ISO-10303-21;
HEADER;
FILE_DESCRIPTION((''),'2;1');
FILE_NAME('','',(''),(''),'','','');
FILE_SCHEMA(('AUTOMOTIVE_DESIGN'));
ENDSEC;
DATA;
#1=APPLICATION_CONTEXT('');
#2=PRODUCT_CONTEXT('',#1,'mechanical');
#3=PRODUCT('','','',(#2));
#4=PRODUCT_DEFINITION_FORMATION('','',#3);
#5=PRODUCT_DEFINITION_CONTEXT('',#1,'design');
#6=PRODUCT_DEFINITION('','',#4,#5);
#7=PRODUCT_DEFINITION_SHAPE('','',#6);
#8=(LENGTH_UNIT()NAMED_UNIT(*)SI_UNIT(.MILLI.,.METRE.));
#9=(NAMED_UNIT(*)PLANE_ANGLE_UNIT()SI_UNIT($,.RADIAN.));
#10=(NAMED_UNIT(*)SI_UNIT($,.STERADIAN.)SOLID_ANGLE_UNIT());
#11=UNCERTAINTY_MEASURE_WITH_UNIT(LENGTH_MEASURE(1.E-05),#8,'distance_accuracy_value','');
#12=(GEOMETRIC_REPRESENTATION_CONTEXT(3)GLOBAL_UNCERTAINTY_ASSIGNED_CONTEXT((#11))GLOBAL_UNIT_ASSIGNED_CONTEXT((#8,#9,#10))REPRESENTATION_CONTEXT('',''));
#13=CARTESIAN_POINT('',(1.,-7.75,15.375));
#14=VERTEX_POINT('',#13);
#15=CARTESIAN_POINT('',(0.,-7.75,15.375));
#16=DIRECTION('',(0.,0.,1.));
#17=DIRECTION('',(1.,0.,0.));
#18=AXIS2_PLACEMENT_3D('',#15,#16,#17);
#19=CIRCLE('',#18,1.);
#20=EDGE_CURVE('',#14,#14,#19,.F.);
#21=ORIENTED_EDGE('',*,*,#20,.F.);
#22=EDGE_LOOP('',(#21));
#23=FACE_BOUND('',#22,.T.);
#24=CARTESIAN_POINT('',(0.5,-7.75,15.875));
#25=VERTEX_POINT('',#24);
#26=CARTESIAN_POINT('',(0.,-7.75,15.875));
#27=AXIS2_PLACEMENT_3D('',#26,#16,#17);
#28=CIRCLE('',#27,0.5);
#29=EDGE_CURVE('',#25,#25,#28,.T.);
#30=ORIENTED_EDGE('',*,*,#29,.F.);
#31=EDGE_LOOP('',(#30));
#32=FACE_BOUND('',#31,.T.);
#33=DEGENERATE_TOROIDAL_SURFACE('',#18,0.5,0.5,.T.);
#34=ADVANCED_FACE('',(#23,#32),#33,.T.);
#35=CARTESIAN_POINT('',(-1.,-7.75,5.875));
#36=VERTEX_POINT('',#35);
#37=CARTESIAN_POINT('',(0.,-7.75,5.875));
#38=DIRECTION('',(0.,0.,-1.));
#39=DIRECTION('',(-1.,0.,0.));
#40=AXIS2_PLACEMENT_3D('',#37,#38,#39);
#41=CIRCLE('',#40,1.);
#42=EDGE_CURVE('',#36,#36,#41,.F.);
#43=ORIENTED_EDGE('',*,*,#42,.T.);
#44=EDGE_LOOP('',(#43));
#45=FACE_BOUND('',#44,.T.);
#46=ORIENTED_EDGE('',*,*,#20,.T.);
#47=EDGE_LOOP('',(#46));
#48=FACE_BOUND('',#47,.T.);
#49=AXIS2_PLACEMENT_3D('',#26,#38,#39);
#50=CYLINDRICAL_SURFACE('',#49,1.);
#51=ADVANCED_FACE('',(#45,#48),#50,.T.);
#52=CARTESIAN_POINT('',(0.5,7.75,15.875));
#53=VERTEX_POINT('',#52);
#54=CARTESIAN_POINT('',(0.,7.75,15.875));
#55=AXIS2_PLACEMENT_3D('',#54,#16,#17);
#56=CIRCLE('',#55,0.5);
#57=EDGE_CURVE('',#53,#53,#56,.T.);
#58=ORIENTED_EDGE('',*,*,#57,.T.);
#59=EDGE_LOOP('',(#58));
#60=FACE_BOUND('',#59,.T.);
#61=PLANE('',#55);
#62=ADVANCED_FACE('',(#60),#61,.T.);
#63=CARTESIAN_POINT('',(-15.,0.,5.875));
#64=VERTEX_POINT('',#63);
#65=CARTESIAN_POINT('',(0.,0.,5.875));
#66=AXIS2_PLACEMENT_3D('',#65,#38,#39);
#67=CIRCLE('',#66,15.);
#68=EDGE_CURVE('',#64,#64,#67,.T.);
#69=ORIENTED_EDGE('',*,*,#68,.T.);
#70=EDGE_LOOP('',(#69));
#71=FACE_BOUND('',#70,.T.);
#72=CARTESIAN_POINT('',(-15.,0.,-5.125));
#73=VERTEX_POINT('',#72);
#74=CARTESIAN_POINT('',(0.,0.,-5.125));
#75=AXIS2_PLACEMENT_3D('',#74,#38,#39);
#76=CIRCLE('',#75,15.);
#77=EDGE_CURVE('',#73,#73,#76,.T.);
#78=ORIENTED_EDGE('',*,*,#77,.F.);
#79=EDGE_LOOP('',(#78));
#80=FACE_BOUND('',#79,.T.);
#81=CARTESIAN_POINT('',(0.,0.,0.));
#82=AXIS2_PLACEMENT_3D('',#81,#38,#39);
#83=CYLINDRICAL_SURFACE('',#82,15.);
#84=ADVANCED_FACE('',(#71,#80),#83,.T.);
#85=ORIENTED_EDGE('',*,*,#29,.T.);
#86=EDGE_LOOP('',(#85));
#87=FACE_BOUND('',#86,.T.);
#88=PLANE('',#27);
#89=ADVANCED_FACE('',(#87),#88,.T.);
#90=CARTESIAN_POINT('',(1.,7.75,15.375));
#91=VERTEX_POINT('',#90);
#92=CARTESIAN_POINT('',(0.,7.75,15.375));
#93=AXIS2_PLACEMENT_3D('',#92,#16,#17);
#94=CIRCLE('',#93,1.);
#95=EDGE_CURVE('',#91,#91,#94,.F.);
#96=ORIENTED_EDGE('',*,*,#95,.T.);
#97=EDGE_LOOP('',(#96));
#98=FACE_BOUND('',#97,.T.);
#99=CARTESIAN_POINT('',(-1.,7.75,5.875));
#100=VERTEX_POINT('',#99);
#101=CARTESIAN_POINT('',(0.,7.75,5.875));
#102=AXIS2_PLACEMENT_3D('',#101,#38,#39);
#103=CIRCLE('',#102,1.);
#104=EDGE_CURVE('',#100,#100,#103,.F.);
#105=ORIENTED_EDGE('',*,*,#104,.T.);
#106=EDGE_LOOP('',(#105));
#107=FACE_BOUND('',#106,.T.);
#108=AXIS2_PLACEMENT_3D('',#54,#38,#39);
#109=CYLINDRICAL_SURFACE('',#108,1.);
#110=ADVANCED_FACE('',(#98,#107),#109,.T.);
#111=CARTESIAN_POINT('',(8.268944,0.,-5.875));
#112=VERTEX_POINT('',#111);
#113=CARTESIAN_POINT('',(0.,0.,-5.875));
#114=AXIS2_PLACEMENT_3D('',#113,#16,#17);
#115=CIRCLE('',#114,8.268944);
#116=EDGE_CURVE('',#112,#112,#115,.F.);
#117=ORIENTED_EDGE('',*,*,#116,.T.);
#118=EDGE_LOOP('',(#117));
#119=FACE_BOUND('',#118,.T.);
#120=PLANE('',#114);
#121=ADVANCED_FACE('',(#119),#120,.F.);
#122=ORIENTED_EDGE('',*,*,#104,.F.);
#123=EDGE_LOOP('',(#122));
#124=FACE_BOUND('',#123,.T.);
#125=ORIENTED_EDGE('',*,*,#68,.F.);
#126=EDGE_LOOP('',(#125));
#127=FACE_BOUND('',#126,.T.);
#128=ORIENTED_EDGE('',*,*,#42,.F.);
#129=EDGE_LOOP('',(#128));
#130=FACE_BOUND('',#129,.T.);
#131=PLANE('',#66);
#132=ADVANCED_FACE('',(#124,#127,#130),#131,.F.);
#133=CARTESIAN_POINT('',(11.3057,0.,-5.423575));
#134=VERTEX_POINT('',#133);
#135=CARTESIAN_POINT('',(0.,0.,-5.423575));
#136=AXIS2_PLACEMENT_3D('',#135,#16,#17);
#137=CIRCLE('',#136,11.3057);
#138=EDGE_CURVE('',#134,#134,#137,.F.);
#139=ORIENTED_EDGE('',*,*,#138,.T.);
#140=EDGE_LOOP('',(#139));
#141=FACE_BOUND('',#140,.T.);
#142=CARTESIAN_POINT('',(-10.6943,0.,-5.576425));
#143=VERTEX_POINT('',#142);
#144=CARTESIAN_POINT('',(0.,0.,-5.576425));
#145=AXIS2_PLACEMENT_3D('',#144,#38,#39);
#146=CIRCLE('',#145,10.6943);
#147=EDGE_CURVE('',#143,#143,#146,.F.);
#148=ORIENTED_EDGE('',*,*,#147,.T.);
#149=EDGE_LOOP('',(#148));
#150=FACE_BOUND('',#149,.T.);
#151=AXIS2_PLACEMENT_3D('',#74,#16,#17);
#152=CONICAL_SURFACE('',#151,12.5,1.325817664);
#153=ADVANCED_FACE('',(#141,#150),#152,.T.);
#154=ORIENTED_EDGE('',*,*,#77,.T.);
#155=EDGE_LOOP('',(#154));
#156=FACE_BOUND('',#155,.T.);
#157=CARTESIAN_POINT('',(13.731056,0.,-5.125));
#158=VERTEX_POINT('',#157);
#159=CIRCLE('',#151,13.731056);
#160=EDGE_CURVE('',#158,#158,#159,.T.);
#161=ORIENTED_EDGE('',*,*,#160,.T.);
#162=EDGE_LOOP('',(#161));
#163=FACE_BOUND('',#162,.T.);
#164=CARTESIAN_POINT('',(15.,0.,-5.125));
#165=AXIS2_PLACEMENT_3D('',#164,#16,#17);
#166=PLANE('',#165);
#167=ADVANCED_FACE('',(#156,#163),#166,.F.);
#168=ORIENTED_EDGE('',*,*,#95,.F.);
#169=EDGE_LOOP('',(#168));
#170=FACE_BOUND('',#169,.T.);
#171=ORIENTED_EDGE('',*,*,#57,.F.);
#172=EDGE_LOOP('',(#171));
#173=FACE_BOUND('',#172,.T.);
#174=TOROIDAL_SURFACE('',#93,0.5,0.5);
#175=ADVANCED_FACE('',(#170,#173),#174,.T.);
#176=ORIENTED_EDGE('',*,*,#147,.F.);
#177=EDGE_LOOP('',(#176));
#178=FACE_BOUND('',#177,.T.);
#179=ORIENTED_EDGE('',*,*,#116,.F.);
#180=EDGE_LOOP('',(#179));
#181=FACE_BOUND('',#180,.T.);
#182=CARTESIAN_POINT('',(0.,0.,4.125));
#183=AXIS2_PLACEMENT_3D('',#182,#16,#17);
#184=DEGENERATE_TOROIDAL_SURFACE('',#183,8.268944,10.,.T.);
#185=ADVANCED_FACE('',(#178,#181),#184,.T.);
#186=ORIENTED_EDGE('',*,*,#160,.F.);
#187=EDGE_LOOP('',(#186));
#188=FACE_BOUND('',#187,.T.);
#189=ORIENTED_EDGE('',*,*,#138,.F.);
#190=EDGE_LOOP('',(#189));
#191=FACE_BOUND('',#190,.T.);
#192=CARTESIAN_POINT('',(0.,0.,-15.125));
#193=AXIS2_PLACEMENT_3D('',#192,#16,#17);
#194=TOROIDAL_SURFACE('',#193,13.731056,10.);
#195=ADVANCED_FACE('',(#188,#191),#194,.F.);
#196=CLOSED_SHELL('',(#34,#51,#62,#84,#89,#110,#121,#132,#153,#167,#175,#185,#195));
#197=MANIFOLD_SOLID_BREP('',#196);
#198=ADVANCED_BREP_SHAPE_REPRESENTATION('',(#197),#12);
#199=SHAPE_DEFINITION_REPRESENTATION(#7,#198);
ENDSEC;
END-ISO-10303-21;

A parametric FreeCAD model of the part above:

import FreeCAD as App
import Part
import Sketcher
from FreeCAD import Vector
Q = App.Units.Quantity


def edges_at(feature, points):
    """Names of the edges that pass closest to the given points."""
    edges = feature.Shape.Edges
    near = lambda p: min(range(len(edges)), key=lambda i: edges[i].distToShape(Part.Vertex(*p))[0])
    return sorted({f"Edge{near(p) + 1}" for p in points})

doc = App.newDocument("Part")
params = doc.addObject("Spreadsheet::Sheet", "Params")
for row, (alias, value) in enumerate([
    ("sketch1_width", "15 mm"),
    ("revolution_angle", "360 deg"),
    ("fillet_radius", "10 mm"),
    ("sketch2_diameter", "2 mm"),
    ("pad1_length", "10 mm"),
    ("fillet2_radius", "0.5 mm"),
], start=1):
    params.set(f"A{row}", alias)
    params.set(f"B{row}", "=" + value)
    params.setAlias(f"B{row}", alias)

body = doc.addObject("PartDesign::Body", "Body")

# Sketch on XZ plane
sketch1 = body.newObject("Sketcher::SketchObject", "Sketch")
sketch1.AttachmentSupport = (doc.getObject("XZ_Plane"), [""])
sketch1.MapMode = "FlatFace"
sketch1.addGeometry([
    Part.LineSegment(Vector(0, 5.875, 0), Vector(15, 5.875, 0)),  # 0
    Part.LineSegment(Vector(15, 5.875, 0), Vector(15, -5.125, 0)),  # 1
    Part.LineSegment(Vector(15, -5.125, 0), Vector(12.5, -5.125, 0)),  # 2
    Part.BSplineCurve([Vector(12.5, -5.125, 0), Vector(9.5, -5.875, 0)], [2, 2], [0, 1], False, 1, [1, 1], False),  # 3
    Part.LineSegment(Vector(9.5, -5.875, 0), Vector(0, -5.875, 0)),  # 4
    Part.LineSegment(Vector(0, -5.875, 0), Vector(0, 5.875, 0)),  # 5
], False)
sketch1.addConstraint([
    Sketcher.Constraint("Block", 3),
    Sketcher.Constraint("Coincident", 0, 2, 1, 1),
    Sketcher.Constraint("Coincident", 1, 2, 2, 1),
    Sketcher.Constraint("Coincident", 2, 2, 3, 1),
    Sketcher.Constraint("Coincident", 3, 2, 4, 1),
    Sketcher.Constraint("Coincident", 4, 2, 5, 1),
    Sketcher.Constraint("Coincident", 5, 2, 0, 1),
    Sketcher.Constraint("Horizontal", 0),
    Sketcher.Constraint("Vertical", 1),
    Sketcher.Constraint("Horizontal", 2),
    Sketcher.Constraint("Horizontal", 4),
    Sketcher.Constraint("Vertical", 5),
    Sketcher.Constraint("Symmetric", 4, 2, 5, 2, -1, 1),
    Sketcher.Constraint("DistanceX", 0, 1, 0, 2, Q("15 mm")),
])
sketch1.setExpression("Constraints[13]", "Params.sketch1_width")
revolution = body.newObject("PartDesign::Revolution", "Revolution")
revolution.Profile = sketch1
revolution.ReferenceAxis = (sketch1, ["V_Axis"])
revolution.setExpression("Angle", "Params.revolution_angle")
doc.recompute()

fillet = body.newObject("PartDesign::Fillet", "Fillet")
fillet.Base = (revolution, edges_at(revolution, [(-12.5, 0, -5.125), (-9.5, 0, -5.875)]))
fillet.setExpression("Radius", "Params.fillet_radius")

# Sketch on XY plane
sketch2 = body.newObject("Sketcher::SketchObject", "Sketch001")
sketch2.AttachmentSupport = (doc.getObject("XY_Plane"), [""])
sketch2.MapMode = "FlatFace"
sketch2.AttachmentOffset = App.Placement(Vector(0, 0, 5.875), App.Rotation())
sketch2.addGeometry([
    Part.Circle(Vector(0, 7.8, 0), Vector(0, 0, 1), 1),
    Part.Circle(Vector(0, -7.8, 0), Vector(0, 0, 1), 1),
], False)
sketch2.addConstraint([
    Sketcher.Constraint("Equal", 0, 1),
    Sketcher.Constraint("Symmetric", 0, 3, 1, 3, -1, 1),
    Sketcher.Constraint("PointOnObject", 0, 3, -2),
    Sketcher.Constraint("Diameter", 0, Q("2 mm")),
    Sketcher.Constraint("DistanceY", 1, 3, 0, 3, Q("15.5 mm")),
])
sketch2.setExpression("Constraints[3]", "Params.sketch2_diameter")
pad1 = body.newObject("PartDesign::Pad", "Pad")
pad1.Profile = sketch2
pad1.setExpression("Length", "Params.pad1_length")
doc.recompute()

fillet2 = body.newObject("PartDesign::Fillet", "Fillet001")
fillet2.Base = (pad1, edges_at(pad1, [(-1, 7.75, 15.875), (-1, -7.75, 15.875)]))
fillet2.setExpression("Radius", "Params.fillet2_radius")

doc.recompute()
